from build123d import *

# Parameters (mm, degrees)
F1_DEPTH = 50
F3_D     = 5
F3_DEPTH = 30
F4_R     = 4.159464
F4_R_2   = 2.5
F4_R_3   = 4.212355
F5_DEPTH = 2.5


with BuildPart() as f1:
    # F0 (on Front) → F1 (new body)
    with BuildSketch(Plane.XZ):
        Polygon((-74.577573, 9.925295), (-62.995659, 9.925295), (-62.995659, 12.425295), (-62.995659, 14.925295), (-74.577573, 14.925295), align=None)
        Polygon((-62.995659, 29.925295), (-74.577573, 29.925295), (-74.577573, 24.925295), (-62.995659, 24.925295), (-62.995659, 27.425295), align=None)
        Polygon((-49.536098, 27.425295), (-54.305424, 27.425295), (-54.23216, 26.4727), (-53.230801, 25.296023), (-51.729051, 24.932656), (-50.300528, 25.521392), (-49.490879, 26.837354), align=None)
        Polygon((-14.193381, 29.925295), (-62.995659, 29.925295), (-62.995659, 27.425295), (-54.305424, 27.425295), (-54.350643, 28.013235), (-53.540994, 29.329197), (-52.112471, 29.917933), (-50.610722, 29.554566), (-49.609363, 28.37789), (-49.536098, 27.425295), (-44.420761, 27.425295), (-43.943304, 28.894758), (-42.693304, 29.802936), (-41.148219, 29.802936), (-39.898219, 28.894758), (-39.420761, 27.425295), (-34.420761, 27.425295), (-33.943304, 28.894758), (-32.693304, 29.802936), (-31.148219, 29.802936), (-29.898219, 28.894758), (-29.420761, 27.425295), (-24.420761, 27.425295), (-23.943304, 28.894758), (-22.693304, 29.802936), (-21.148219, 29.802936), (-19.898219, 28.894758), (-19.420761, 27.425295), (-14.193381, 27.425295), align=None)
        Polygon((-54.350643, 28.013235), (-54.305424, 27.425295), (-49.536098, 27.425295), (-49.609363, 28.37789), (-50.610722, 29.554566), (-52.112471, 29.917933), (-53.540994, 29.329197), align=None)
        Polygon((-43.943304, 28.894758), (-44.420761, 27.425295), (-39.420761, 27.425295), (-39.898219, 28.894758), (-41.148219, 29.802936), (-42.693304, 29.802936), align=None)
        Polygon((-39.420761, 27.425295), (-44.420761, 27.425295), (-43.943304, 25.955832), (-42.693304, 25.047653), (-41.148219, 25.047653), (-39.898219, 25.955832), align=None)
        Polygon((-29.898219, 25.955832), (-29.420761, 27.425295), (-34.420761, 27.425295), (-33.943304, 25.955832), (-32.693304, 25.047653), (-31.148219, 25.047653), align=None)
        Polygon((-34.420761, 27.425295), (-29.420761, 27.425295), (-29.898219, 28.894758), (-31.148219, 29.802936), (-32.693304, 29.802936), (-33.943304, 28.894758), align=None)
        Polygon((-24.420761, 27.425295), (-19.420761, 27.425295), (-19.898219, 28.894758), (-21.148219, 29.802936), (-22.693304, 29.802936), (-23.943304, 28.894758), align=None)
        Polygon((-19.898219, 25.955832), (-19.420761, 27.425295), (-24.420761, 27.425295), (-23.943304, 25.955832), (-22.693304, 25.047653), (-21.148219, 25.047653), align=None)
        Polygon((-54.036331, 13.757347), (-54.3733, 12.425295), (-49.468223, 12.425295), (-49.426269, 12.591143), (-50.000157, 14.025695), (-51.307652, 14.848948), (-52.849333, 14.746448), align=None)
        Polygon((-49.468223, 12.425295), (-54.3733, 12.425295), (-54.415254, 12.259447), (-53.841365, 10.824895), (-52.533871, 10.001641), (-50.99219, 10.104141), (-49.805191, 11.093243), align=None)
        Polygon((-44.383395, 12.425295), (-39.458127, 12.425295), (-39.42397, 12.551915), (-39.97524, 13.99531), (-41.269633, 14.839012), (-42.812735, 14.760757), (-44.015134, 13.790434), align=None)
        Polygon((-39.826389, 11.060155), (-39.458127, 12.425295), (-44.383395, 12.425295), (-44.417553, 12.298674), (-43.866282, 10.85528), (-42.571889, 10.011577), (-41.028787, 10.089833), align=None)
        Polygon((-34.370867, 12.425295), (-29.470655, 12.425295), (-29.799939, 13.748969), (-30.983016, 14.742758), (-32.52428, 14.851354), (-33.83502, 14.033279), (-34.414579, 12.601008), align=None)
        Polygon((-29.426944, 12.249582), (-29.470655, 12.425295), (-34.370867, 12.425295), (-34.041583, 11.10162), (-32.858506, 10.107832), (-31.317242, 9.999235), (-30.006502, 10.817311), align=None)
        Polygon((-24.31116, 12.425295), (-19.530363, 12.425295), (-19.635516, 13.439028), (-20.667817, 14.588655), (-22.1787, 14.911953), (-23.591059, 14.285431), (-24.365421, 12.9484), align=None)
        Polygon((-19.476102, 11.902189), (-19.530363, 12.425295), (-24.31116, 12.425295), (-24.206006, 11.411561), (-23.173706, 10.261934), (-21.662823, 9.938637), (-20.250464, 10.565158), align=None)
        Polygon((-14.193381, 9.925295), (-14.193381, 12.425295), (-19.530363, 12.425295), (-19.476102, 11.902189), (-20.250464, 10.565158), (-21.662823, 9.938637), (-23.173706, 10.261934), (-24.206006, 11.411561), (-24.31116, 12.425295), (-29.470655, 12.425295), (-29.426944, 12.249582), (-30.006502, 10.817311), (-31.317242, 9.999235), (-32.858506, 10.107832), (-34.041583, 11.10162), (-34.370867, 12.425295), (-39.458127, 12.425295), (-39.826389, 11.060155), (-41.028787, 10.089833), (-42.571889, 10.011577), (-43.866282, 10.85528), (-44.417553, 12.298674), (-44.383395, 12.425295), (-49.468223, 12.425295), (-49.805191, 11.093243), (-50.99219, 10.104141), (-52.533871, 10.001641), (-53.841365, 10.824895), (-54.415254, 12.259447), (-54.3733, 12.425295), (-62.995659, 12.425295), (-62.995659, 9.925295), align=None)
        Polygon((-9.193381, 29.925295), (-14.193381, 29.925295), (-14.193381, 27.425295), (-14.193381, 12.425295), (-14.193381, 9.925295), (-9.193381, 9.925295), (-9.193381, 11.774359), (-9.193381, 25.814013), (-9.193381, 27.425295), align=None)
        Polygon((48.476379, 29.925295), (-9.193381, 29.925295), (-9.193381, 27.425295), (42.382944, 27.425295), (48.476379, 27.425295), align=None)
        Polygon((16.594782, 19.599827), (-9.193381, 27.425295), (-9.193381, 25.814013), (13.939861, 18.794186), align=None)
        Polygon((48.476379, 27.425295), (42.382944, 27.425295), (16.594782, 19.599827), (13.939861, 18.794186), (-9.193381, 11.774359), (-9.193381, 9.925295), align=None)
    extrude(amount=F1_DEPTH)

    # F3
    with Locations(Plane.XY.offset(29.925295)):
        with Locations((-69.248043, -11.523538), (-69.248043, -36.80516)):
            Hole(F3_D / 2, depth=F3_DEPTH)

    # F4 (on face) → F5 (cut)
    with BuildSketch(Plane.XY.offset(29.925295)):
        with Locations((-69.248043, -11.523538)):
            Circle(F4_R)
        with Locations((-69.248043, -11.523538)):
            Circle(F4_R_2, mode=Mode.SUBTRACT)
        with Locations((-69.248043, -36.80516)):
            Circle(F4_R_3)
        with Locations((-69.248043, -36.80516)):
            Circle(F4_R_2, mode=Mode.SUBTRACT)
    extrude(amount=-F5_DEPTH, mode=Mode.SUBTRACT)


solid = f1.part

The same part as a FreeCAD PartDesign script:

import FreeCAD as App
import Part
import Sketcher


def add_polygon(sketch, points):
    """Adds a closed chain of lines whose ends are joined by coincident constraints."""
    first, n = sketch.GeometryCount, len(points)
    for a, b in zip(points, points[1:] + points[:1]):
        sketch.addGeometry(Part.LineSegment(App.Vector(*a, 0), App.Vector(*b, 0)), False)
    for i in range(n):
        sketch.addConstraint(Sketcher.Constraint("Coincident", first + i, 2, first + (i + 1) % n, 1))

doc = App.newDocument("Part")
body = doc.addObject("PartDesign::Body", "Body")

# Sketch on XZ plane
sketch1 = body.newObject("Sketcher::SketchObject", "Sketch")
sketch1.AttachmentSupport = (doc.getObject("XZ_Plane"), [""])
sketch1.MapMode = "FlatFace"
add_polygon(sketch1, [(-74.577573, 9.925295), (-9.193381, 9.925295), (48.476379, 27.425295), (48.476379, 29.925295), (-74.577573, 29.925295), (-74.577573, 24.925295), (-62.995659, 24.925295), (-62.995659, 27.425295), (-54.305424, 27.425295), (-54.23216, 26.4727), (-53.230801, 25.296023), (-51.729051, 24.932656), (-50.300528, 25.521392), (-49.490879, 26.837354), (-49.536098, 27.425295), (-44.420761, 27.425295), (-43.943304, 25.955832), (-42.693304, 25.047653), (-41.148219, 25.047653), (-39.898219, 25.955832), (-39.420761, 27.425295), (-34.420761, 27.425295), (-33.943304, 25.955832), (-32.693304, 25.047653), (-31.148219, 25.047653), (-29.898219, 25.955832), (-29.420761, 27.425295), (-24.420761, 27.425295), (-23.943304, 25.955832), (-22.693304, 25.047653), (-21.148219, 25.047653), (-19.898219, 25.955832), (-19.420761, 27.425295), (-14.193381, 27.425295), (-14.193381, 12.425295), (-19.530363, 12.425295), (-19.635516, 13.439028), (-20.667817, 14.588655), (-22.1787, 14.911953), (-23.591059, 14.285431), (-24.365421, 12.9484), (-24.31116, 12.425295), (-29.470655, 12.425295), (-29.799939, 13.748969), (-30.983016, 14.742758), (-32.52428, 14.851354), (-33.83502, 14.033279), (-34.414579, 12.601008), (-34.370867, 12.425295), (-39.458127, 12.425295), (-39.42397, 12.551915), (-39.97524, 13.99531), (-41.269633, 14.839012), (-42.812735, 14.760757), (-44.015134, 13.790434), (-44.383395, 12.425295), (-49.468223, 12.425295), (-49.426269, 12.591143), (-50.000157, 14.025695), (-51.307652, 14.848948), (-52.849333, 14.746448), (-54.036331, 13.757347), (-54.3733, 12.425295), (-62.995659, 12.425295), (-62.995659, 14.925295), (-74.577573, 14.925295)])  # lines 0-65
add_polygon(sketch1, [(-9.193381, 11.774359), (-9.193381, 25.814013), (13.939861, 18.794186)])  # lines 66-68
add_polygon(sketch1, [(16.594782, 19.599827), (-9.193381, 27.425295), (42.382944, 27.425295)])  # lines 69-71
sketch1.addConstraint(Sketcher.Constraint("Horizontal", 0))
sketch1.addConstraint(Sketcher.Constraint("Vertical", 2))
sketch1.addConstraint(Sketcher.Constraint("Horizontal", 3))
sketch1.addConstraint(Sketcher.Constraint("Vertical", 4))
sketch1.addConstraint(Sketcher.Constraint("Horizontal", 5))
sketch1.addConstraint(Sketcher.Constraint("Vertical", 6))
sketch1.addConstraint(Sketcher.Constraint("Horizontal", 7))
sketch1.addConstraint(Sketcher.Constraint("Horizontal", 14))
sketch1.addConstraint(Sketcher.Constraint("Horizontal", 17))
sketch1.addConstraint(Sketcher.Constraint("Horizontal", 20))
sketch1.addConstraint(Sketcher.Constraint("Horizontal", 23))
sketch1.addConstraint(Sketcher.Constraint("Horizontal", 26))
sketch1.addConstraint(Sketcher.Constraint("Horizontal", 29))
sketch1.addConstraint(Sketcher.Constraint("Horizontal", 32))
sketch1.addConstraint(Sketcher.Constraint("Vertical", 33))
sketch1.addConstraint(Sketcher.Constraint("Horizontal", 34))
sketch1.addConstraint(Sketcher.Constraint("Horizontal", 41))
sketch1.addConstraint(Sketcher.Constraint("Horizontal", 48))
sketch1.addConstraint(Sketcher.Constraint("Horizontal", 55))
sketch1.addConstraint(Sketcher.Constraint("Horizontal", 62))
sketch1.addConstraint(Sketcher.Constraint("Vertical", 63))
sketch1.addConstraint(Sketcher.Constraint("Horizontal", 64))
sketch1.addConstraint(Sketcher.Constraint("Vertical", 65))
sketch1.addConstraint(Sketcher.Constraint("Vertical", 66))
sketch1.addConstraint(Sketcher.Constraint("Horizontal", 70))
sketch1.addConstraint(Sketcher.Constraint("DistanceX", 20, 1, 20, 2, 5.0))
sketch1.addConstraint(Sketcher.Constraint("DistanceX", 26, 1, 26, 2, 5.0))
sketch1.addConstraint(Sketcher.Constraint("DistanceY", 4, 2, 4, 1, 5.0))
sketch1.addConstraint(Sketcher.Constraint("DistanceY", 33, 2, 33, 1, 15.0))
sketch1.addConstraint(Sketcher.Constraint("DistanceY", 65, 2, 65, 1, 5.0))
sketch1.addConstraint(Sketcher.Constraint("DistanceY", 2, 1, 2, 2, 2.5))
sketch1.addConstraint(Sketcher.Constraint("DistanceY", 6, 1, 6, 2, 2.5))
sketch1.addConstraint(Sketcher.Constraint("DistanceY", 63, 1, 63, 2, 2.5))
sketch1.addConstraint(Sketcher.Constraint("Distance", 1, 60.266502))
sketch1.addConstraint(Sketcher.Constraint("DistanceX", 0, 1, 0, 2, 65.384192))
sketch1.addConstraint(Sketcher.Constraint("DistanceX", 32, 1, 32, 2, 5.22738))
sketch1.addConstraint(Sketcher.Constraint("DistanceX", 48, 2, 48, 1, 5.08726))
sketch1.addConstraint(Sketcher.Constraint("DistanceX", 55, 2, 55, 1, 5.084828))
sketch1.addConstraint(Sketcher.Constraint("DistanceX", 62, 2, 62, 1, 8.622359))
sketch1.addConstraint(Sketcher.Constraint("DistanceY", -1, 1, 8, 2, 26.4727))
sketch1.addConstraint(Sketcher.Constraint("DistanceX", 9, 2, -1, 1, 53.230801))
sketch1.addConstraint(Sketcher.Constraint("DistanceX", 13, 2, -1, 1, 49.536098))
sketch1.addConstraint(Sketcher.Constraint("DistanceX", 37, 2, -1, 1, 22.1787))
sketch1.addConstraint(Sketcher.Constraint("DistanceY", -1, 1, 39, 2, 12.9484))
sketch1.addConstraint(Sketcher.Constraint("DistanceX", 61, 2, -1, 1, 54.3733))
sketch1.addConstraint(Sketcher.Constraint("Distance", 8, 0.955408))
sketch1.addConstraint(Sketcher.Constraint("Distance", 40, 0.525912))
sketch1.addConstraint(Sketcher.Constraint("Distance", 47, 0.181068))
sketch1.addConstraint(Sketcher.Constraint("Distance", 67, 24.174881))
sketch1.addConstraint(Sketcher.Constraint("Distance", 68, 24.174881))
sketch1.addConstraint(Sketcher.Constraint("DistanceX", 3, 2, 3, 1, 123.053952))
sketch1.addConstraint(Sketcher.Constraint("DistanceX", 5, 1, 5, 2, 11.581914))
sketch1.addConstraint(Sketcher.Constraint("DistanceX", 7, 1, 7, 2, 8.690235))
sketch1.addConstraint(Sketcher.Constraint("DistanceX", 14, 1, 14, 2, 5.115337))
sketch1.addConstraint(Sketcher.Constraint("DistanceX", 17, 1, 17, 2, 1.545085))
sketch1.addConstraint(Sketcher.Constraint("DistanceX", 23, 1, 23, 2, 1.545085))
sketch1.addConstraint(Sketcher.Constraint("DistanceX", 29, 1, 29, 2, 1.545085))
sketch1.addConstraint(Sketcher.Constraint("DistanceX", 34, 2, 34, 1, 5.336982))
sketch1.addConstraint(Sketcher.Constraint("DistanceX", 41, 2, 41, 1, 5.159495))
sketch1.addConstraint(Sketcher.Constraint("DistanceX", 64, 2, 64, 1, 11.581914))
sketch1.addConstraint(Sketcher.Constraint("DistanceX", 70, 1, 70, 2, 51.576325))
sketch1.addConstraint(Sketcher.Constraint("DistanceY", 66, 1, 66, 2, 14.039654))
sketch1.addConstraint(Sketcher.Constraint("DistanceX", -1, 1, 1, 2, 48.476379))
sketch1.addConstraint(Sketcher.Constraint("DistanceX", 8, 2, -1, 1, 54.23216))
sketch1.addConstraint(Sketcher.Constraint("DistanceX", 10, 2, -1, 1, 51.729051))
sketch1.addConstraint(Sketcher.Constraint("DistanceY", -1, 1, 11, 2, 25.521392))
sketch1.addConstraint(Sketcher.Constraint("DistanceX", 12, 2, -1, 1, 49.490879))
sketch1.addConstraint(Sketcher.Constraint("DistanceX", 17, 2, -1, 1, 41.148219))
sketch1.addConstraint(Sketcher.Constraint("DistanceX", 18, 2, -1, 1, 39.898219))
sketch1.addConstraint(Sketcher.Constraint("DistanceX", 19, 2, -1, 1, 39.420761))
sketch1.addConstraint(Sketcher.Constraint("DistanceX", 23, 2, -1, 1, 31.148219))
sketch1.addConstraint(Sketcher.Constraint("DistanceX", 24, 2, -1, 1, 29.898219))
sketch1.addConstraint(Sketcher.Constraint("DistanceX", 25, 2, -1, 1, 29.420761))
sketch1.addConstraint(Sketcher.Constraint("DistanceX", 29, 2, -1, 1, 21.148219))
sketch1.addConstraint(Sketcher.Constraint("DistanceX", 30, 2, -1, 1, 19.898219))
sketch1.addConstraint(Sketcher.Constraint("DistanceX", 31, 2, -1, 1, 19.420761))
sketch1.addConstraint(Sketcher.Constraint("DistanceX", 38, 2, -1, 1, 23.591059))
sketch1.addConstraint(Sketcher.Constraint("DistanceY", -1, 1, 38, 2, 14.285431))
sketch1.addConstraint(Sketcher.Constraint("DistanceX", 39, 2, -1, 1, 24.365421))
sketch1.addConstraint(Sketcher.Constraint("DistanceX", 40, 2, -1, 1, 24.31116))
sketch1.addConstraint(Sketcher.Constraint("DistanceX", 42, 2, -1, 1, 29.799939))
sketch1.addConstraint(Sketcher.Constraint("DistanceY", -1, 1, 42, 2, 13.748969))
sketch1.addConstraint(Sketcher.Constraint("DistanceX", 44, 2, -1, 1, 32.52428))
sketch1.addConstraint(Sketcher.Constraint("DistanceX", 45, 2, -1, 1, 33.83502))
sketch1.addConstraint(Sketcher.Constraint("DistanceY", -1, 1, 45, 2, 14.033279))
sketch1.addConstraint(Sketcher.Constraint("DistanceX", 46, 2, -1, 1, 34.414579))
sketch1.addConstraint(Sketcher.Constraint("DistanceX", 49, 2, -1, 1, 39.42397))
sketch1.addConstraint(Sketcher.Constraint("DistanceX", 50, 2, -1, 1, 39.97524))
sketch1.addConstraint(Sketcher.Constraint("DistanceY", -1, 1, 50, 2, 13.99531))
sketch1.addConstraint(Sketcher.Constraint("DistanceX", 56, 2, -1, 1, 49.426269))
sketch1.addConstraint(Sketcher.Constraint("DistanceX", 58, 2, -1, 1, 51.307652))
sketch1.addConstraint(Sketcher.Constraint("DistanceX", 60, 2, -1, 1, 54.036331))
sketch1.addConstraint(Sketcher.Constraint("DistanceX", 66, 2, -1, 1, 9.193381))
sketch1.addConstraint(Sketcher.Constraint("DistanceY", -1, 1, 68, 2, 11.774359))
sketch1.addConstraint(Sketcher.Constraint("DistanceX", 69, 2, -1, 1, 9.193381))
sketch1.addConstraint(Sketcher.Constraint("DistanceX", -1, 1, 71, 2, 16.594782))
sketch1.addConstraint(Sketcher.Constraint("Distance", 9, 1.545085))
sketch1.addConstraint(Sketcher.Constraint("Distance", 10, 1.545085))
sketch1.addConstraint(Sketcher.Constraint("Distance", 11, 1.545085))
sketch1.addConstraint(Sketcher.Constraint("Distance", 12, 1.545085))
sketch1.addConstraint(Sketcher.Constraint("Distance", 13, 0.589677))
sketch1.addConstraint(Sketcher.Constraint("Distance", 15, 1.545085))
sketch1.addConstraint(Sketcher.Constraint("Distance", 16, 1.545085))
sketch1.addConstraint(Sketcher.Constraint("Distance", 18, 1.545085))
sketch1.addConstraint(Sketcher.Constraint("Distance", 19, 1.545085))
sketch1.addConstraint(Sketcher.Constraint("Distance", 21, 1.545085))
sketch1.addConstraint(Sketcher.Constraint("Distance", 22, 1.545085))
sketch1.addConstraint(Sketcher.Constraint("Distance", 24, 1.545085))
sketch1.addConstraint(Sketcher.Constraint("Distance", 25, 1.545085))
sketch1.addConstraint(Sketcher.Constraint("Distance", 27, 1.545085))
sketch1.addConstraint(Sketcher.Constraint("Distance", 28, 1.545085))
sketch1.addConstraint(Sketcher.Constraint("Distance", 30, 1.545085))
sketch1.addConstraint(Sketcher.Constraint("Distance", 31, 1.545085))
sketch1.addConstraint(Sketcher.Constraint("Distance", 35, 1.019172))
sketch1.addConstraint(Sketcher.Constraint("Distance", 36, 1.545085))
sketch1.addConstraint(Sketcher.Constraint("Distance", 37, 1.545085))
sketch1.addConstraint(Sketcher.Constraint("Distance", 38, 1.545085))
sketch1.addConstraint(Sketcher.Constraint("Distance", 43, 1.545085))
sketch1.addConstraint(Sketcher.Constraint("Distance", 44, 1.545085))
sketch1.addConstraint(Sketcher.Constraint("Distance", 45, 1.545084))
sketch1.addConstraint(Sketcher.Constraint("Distance", 46, 1.545085))
sketch1.addConstraint(Sketcher.Constraint("Distance", 49, 0.131146))
sketch1.addConstraint(Sketcher.Constraint("Distance", 50, 1.545085))
sketch1.addConstraint(Sketcher.Constraint("Distance", 51, 1.545085))
sketch1.addConstraint(Sketcher.Constraint("Distance", 52, 1.545085))
sketch1.addConstraint(Sketcher.Constraint("Distance", 53, 1.545086))
sketch1.addConstraint(Sketcher.Constraint("Distance", 54, 1.413938))
sketch1.addConstraint(Sketcher.Constraint("Distance", 56, 0.171072))
sketch1.addConstraint(Sketcher.Constraint("Distance", 57, 1.545085))
sketch1.addConstraint(Sketcher.Constraint("Distance", 58, 1.545085))
sketch1.addConstraint(Sketcher.Constraint("Distance", 59, 1.545085))
sketch1.addConstraint(Sketcher.Constraint("Distance", 60, 1.545084))
sketch1.addConstraint(Sketcher.Constraint("Distance", 61, 1.374013))
sketch1.addConstraint(Sketcher.Constraint("Distance", 69, 26.949347))
sketch1.addConstraint(Sketcher.Constraint("DistanceX", 15, 2, -1, 1, 43.943304))
sketch1.addConstraint(Sketcher.Constraint("DistanceX", 21, 2, -1, 1, 33.943304))
sketch1.addConstraint(Sketcher.Constraint("DistanceX", 27, 2, -1, 1, 23.943304))
sketch1.addConstraint(Sketcher.Constraint("DistanceX", 35, 2, -1, 1, 19.635516))
sketch1.addConstraint(Sketcher.Constraint("DistanceX", 51, 2, -1, 1, 41.269633))
sketch1.addConstraint(Sketcher.Constraint("DistanceX", 52, 2, -1, 1, 42.812735))
sketch1.addConstraint(Sketcher.Constraint("DistanceX", 53, 2, -1, 1, 44.015134))
sketch1.addConstraint(Sketcher.Constraint("DistanceX", 54, 2, -1, 1, 44.383395))
sketch1.addConstraint(Sketcher.Constraint("DistanceX", 57, 2, -1, 1, 50.000157))
sketch1.addConstraint(Sketcher.Constraint("DistanceY", -1, 1, 69, 2, 27.425295))
pad1 = body.newObject("PartDesign::Pad", "Pad")
pad1.Profile = sketch1
pad1.Length = 50

# Sketch on XY plane
sketch2 = body.newObject("Sketcher::SketchObject", "Sketch001")
sketch2.AttachmentSupport = (doc.getObject("XY_Plane"), [""])
sketch2.MapMode = "FlatFace"
sketch2.AttachmentOffset = App.Placement(App.Vector(0, 0, 29.925295), App.Rotation())
sketch2.addGeometry(Part.Circle(App.Vector(-69.2, -11.5, 0), App.Vector(0, 0, 1), 2.5), False)
sketch2.addGeometry(Part.Circle(App.Vector(-69.2, -36.8, 0), App.Vector(0, 0, 1), 2.5), False)
sketch2.addConstraint(Sketcher.Constraint("Equal", 0, 1))
sketch2.addConstraint(Sketcher.Constraint("Vertical", 0, 3, 1, 3))
sketch2.addConstraint(Sketcher.Constraint("Diameter", 0, 5.0))
sketch2.addConstraint(Sketcher.Constraint("DistanceY", 1, 3, -1, 1, 36.80516))
sketch2.addConstraint(Sketcher.Constraint("DistanceY", 1, 3, 0, 3, 25.281622))
sketch2.addConstraint(Sketcher.Constraint("DistanceX", 0, 3, -1, 1, 69.248043))
doc.recompute()
hole = body.newObject("PartDesign::Hole", "Hole")
hole.Profile = sketch2
hole.ThreadType = "None"
hole.Diameter = 5
hole.DepthType = "Dimension"
hole.Depth = 30
hole.DrillPoint = "Flat"

# Sketch on XY plane
sketch3 = body.newObject("Sketcher::SketchObject", "Sketch002")
sketch3.AttachmentSupport = (doc.getObject("XY_Plane"), [""])
sketch3.MapMode = "FlatFace"
sketch3.AttachmentOffset = App.Placement(App.Vector(0, 0, 29.925295), App.Rotation())
sketch3.addGeometry(Part.Circle(App.Vector(-69.2, -11.5, 0), App.Vector(0, 0, 1), 4.2), False)
sketch3.addGeometry(Part.Circle(App.Vector(-69.2, -11.5, 0), App.Vector(0, 0, 1), 2.5), False)
sketch3.addGeometry(Part.Circle(App.Vector(-69.2, -36.8, 0), App.Vector(0, 0, 1), 4.2), False)
sketch3.addGeometry(Part.Circle(App.Vector(-69.2, -36.8, 0), App.Vector(0, 0, 1), 2.5), False)
sketch3.addConstraint(Sketcher.Constraint("Coincident", 1, 3, 0, 3))
sketch3.addConstraint(Sketcher.Constraint("Coincident", 3, 3, 2, 3))
sketch3.addConstraint(Sketcher.Constraint("Equal", 1, 3))
sketch3.addConstraint(Sketcher.Constraint("Vertical", 1, 3, 2, 3))
sketch3.addConstraint(Sketcher.Constraint("Diameter", 1, 5.0))
sketch3.addConstraint(Sketcher.Constraint("Diameter", 2, 8.42471))
sketch3.addConstraint(Sketcher.Constraint("Diameter", 0, 8.318928))
sketch3.addConstraint(Sketcher.Constraint("DistanceY", 2, 3, -1, 1, 36.80516))
sketch3.addConstraint(Sketcher.Constraint("DistanceY", 2, 3, 0, 3, 25.281622))
sketch3.addConstraint(Sketcher.Constraint("DistanceX", 0, 3, -1, 1, 69.248043))
pocket1 = body.newObject("PartDesign::Pocket", "Pocket")
pocket1.Profile = sketch3
pocket1.Length = 2.5

doc.recompute()
